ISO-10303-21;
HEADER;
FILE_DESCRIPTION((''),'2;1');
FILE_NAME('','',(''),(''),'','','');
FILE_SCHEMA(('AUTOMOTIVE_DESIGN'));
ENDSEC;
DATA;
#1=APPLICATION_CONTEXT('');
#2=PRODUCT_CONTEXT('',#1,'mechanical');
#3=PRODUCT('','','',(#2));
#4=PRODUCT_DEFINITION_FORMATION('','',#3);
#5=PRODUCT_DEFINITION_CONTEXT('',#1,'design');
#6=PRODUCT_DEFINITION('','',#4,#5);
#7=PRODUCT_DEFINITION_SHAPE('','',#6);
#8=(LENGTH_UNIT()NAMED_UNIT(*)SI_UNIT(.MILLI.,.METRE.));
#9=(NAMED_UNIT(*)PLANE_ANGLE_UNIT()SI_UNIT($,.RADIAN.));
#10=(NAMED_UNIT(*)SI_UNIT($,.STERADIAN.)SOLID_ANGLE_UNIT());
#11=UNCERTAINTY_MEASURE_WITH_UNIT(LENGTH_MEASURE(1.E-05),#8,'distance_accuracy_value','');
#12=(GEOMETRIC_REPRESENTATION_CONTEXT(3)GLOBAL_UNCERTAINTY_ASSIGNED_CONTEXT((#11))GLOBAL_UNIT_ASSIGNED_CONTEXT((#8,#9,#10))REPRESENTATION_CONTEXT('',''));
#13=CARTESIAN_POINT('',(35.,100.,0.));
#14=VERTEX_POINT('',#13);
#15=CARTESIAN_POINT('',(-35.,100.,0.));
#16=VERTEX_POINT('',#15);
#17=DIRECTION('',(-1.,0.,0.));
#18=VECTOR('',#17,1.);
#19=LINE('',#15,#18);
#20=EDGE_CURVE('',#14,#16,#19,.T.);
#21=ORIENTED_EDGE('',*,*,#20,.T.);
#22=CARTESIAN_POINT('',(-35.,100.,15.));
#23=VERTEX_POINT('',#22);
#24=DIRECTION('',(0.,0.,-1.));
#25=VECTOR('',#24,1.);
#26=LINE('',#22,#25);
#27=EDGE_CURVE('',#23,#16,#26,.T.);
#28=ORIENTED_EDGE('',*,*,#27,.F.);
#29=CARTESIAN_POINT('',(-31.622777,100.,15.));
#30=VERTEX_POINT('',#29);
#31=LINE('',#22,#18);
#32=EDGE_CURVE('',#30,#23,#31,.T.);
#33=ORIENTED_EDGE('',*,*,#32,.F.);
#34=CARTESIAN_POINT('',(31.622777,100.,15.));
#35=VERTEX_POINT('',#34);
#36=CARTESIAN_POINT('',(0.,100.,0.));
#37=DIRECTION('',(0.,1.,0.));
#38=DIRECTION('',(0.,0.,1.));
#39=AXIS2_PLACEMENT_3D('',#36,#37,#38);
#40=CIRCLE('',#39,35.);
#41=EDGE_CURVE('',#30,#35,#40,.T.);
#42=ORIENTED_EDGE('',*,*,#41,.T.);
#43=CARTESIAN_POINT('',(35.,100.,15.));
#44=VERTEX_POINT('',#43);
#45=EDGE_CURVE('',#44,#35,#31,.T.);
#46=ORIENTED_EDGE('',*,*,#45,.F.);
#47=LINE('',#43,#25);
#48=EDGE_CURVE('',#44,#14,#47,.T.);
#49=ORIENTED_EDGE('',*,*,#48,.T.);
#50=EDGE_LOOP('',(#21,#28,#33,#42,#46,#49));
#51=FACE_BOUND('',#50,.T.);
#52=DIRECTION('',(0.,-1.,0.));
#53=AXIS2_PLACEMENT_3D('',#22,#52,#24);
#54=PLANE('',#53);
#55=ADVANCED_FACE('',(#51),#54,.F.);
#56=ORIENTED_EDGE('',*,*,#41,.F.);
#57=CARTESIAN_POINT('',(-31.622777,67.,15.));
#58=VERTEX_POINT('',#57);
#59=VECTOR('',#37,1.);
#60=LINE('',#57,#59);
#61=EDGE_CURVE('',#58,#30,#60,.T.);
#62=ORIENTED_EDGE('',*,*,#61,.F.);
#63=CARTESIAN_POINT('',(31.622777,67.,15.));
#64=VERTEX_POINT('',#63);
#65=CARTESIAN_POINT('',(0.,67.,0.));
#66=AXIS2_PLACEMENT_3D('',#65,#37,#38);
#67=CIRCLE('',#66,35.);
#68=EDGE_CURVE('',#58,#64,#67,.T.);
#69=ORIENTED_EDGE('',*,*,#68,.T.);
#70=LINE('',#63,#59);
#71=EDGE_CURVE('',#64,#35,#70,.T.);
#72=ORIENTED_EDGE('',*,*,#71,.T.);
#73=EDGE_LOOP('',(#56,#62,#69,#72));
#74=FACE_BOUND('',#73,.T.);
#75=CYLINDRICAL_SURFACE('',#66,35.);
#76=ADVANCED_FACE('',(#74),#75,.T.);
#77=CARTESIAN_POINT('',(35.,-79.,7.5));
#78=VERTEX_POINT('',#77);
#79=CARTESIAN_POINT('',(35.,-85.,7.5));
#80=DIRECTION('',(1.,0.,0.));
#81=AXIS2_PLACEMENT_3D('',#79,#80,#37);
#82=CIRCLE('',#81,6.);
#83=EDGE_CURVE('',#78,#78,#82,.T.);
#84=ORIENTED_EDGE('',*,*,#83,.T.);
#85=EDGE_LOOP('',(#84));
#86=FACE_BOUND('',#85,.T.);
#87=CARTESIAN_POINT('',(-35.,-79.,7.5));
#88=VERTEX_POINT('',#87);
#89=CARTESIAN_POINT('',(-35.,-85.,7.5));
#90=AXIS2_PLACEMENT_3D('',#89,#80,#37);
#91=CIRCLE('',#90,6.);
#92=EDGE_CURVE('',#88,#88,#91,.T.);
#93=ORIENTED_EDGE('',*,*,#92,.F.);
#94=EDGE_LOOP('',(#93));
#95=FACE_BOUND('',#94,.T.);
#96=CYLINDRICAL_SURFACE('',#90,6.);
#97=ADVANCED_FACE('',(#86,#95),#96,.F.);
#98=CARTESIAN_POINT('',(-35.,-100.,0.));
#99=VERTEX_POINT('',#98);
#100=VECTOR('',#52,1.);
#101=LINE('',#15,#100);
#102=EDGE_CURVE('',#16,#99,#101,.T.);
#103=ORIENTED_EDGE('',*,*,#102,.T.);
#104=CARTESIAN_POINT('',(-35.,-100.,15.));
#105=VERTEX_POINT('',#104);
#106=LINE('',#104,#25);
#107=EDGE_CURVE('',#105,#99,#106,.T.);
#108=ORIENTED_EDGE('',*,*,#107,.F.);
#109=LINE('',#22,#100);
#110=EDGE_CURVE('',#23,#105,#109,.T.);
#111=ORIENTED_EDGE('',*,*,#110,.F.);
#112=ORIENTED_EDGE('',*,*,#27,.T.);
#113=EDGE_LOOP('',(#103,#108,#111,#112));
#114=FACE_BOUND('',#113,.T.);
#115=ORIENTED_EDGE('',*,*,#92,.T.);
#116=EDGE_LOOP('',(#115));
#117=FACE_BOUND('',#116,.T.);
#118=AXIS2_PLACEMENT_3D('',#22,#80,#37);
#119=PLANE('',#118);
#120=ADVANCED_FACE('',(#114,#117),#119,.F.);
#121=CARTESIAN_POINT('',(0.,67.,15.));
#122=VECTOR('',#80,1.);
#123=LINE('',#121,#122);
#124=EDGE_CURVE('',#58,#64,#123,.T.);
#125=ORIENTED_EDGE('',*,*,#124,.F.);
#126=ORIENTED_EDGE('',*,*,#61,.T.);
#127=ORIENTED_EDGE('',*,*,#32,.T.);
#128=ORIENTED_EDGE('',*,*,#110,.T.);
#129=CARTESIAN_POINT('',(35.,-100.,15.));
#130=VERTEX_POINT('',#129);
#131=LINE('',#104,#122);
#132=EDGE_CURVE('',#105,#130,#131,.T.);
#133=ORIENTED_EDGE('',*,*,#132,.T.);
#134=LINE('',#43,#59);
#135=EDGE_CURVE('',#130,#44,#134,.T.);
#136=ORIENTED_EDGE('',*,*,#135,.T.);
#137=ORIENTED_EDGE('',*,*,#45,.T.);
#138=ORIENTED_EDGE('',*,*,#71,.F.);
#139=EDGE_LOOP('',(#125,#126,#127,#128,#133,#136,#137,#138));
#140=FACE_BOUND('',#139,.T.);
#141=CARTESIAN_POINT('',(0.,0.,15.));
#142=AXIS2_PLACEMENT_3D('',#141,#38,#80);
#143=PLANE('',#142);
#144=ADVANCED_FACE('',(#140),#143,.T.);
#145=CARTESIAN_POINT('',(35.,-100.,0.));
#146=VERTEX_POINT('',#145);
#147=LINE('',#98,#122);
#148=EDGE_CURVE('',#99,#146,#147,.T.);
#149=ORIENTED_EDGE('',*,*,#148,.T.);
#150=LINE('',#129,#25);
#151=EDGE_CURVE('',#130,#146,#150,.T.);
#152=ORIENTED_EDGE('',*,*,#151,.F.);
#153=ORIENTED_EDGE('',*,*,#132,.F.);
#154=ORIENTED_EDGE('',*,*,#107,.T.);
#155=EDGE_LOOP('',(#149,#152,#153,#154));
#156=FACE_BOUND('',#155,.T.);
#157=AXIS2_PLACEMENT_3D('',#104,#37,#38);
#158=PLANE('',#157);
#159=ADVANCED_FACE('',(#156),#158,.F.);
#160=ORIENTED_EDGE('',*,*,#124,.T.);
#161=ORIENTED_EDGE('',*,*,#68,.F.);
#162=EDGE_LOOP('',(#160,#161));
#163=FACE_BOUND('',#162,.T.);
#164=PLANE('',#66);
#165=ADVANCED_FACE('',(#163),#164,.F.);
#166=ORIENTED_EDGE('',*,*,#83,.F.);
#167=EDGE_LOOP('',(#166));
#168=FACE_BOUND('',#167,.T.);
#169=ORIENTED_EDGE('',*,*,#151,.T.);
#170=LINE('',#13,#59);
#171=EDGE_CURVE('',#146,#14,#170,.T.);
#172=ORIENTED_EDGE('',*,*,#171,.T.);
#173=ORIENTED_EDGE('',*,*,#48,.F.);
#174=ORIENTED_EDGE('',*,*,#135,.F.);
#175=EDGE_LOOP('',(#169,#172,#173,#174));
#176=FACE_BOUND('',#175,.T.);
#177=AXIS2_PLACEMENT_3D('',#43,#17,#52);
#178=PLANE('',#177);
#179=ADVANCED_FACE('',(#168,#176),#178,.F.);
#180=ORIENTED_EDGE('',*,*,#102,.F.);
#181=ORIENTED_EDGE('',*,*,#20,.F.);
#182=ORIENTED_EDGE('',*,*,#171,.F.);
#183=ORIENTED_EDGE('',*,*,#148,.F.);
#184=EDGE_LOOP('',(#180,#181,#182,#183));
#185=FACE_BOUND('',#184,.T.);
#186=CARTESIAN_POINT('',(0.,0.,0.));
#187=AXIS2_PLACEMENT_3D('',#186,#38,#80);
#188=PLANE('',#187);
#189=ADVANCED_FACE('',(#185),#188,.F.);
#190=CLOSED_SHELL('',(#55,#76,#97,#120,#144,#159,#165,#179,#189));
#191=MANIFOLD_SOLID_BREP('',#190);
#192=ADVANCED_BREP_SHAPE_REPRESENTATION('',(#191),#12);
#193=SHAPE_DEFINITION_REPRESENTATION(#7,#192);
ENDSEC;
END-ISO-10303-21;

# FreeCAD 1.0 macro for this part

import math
import FreeCAD as App
import Part
import Sketcher

V = App.Vector
Q = App.Units.Quantity


def add_polygon(sketch, points):
    """Adds a closed chain of lines whose ends are joined by coincident constraints."""
    first, n = sketch.GeometryCount, len(points)
    for a, b in zip(points, points[1:] + points[:1]):
        sketch.addGeometry(Part.LineSegment(App.Vector(*a, 0), App.Vector(*b, 0)), False)
    for i in range(n):
        sketch.addConstraint(Sketcher.Constraint("Coincident", first + i, 2, first + (i + 1) % n, 1))

doc = App.newDocument("Part")
params = doc.addObject("Spreadsheet::Sheet", "Params")
for row, (alias, value) in enumerate([
    ("sketch1_width", "70 mm"),
    ("sketch1_height", "200 mm"),
    ("pad1_length", "15 mm"),
    ("sketch2_diameter", "12 mm"),
    ("sketch3_radius", "35 mm"),
    ("pad2_length", "33 mm"),
], start=1):
    params.set(f"A{row}", alias)
    params.set(f"B{row}", "=" + value)
    params.setAlias(f"B{row}", alias)

body = doc.addObject("PartDesign::Body", "Body")

sketch1 = body.newObject("Sketcher::SketchObject", "Sketch")
sketch1.AttachmentSupport = (doc.getObject("XY_Plane"), [""])
sketch1.MapMode = "FlatFace"
add_polygon(sketch1, [(-35, 100), (-35, -100), (35, -100), (35, 100)])
sketch1.addConstraint([
    Sketcher.Constraint("Vertical", 0),
    Sketcher.Constraint("Horizontal", 1),
    Sketcher.Constraint("Vertical", 2),
    Sketcher.Constraint("Horizontal", 3),
    Sketcher.Constraint("Symmetric", 0, 2, 2, 2, -1, 1),
    Sketcher.Constraint("DistanceX", 1, 1, 1, 2, Q("70 mm")),
    Sketcher.Constraint("DistanceY", 0, 2, 0, 1, Q("200 mm")),
])
sketch1.setExpression("Constraints[9]", "Params.sketch1_width")
sketch1.setExpression("Constraints[10]", "Params.sketch1_height")
pad1 = body.newObject("PartDesign::Pad", "Pad")
pad1.Profile = sketch1
pad1.setExpression("Length", "Params.pad1_length")

sketch2 = body.newObject("Sketcher::SketchObject", "Sketch001")
sketch2.AttachmentSupport = (doc.getObject("YZ_Plane"), [""])
sketch2.MapMode = "FlatFace"
sketch2.AttachmentOffset = App.Placement(V(0, 0, 35), App.Rotation())
sketch2.addGeometry(Part.Circle(V(-85, 7.5, 0), V(0, 0, 1), 6), False)
sketch2.addConstraint([
    Sketcher.Constraint("Diameter", 0, Q("12 mm")),
    Sketcher.Constraint("DistanceX", 0, 3, -1, 1, Q("85 mm")),
    Sketcher.Constraint("DistanceY", -1, 1, 0, 3, Q("7.5 mm")),
])
sketch2.setExpression("Constraints[0]", "Params.sketch2_diameter")
pocket1 = body.newObject("PartDesign::Pocket", "Pocket")
pocket1.Profile = sketch2
pocket1.Type = "ThroughAll"

sketch3 = body.newObject("Sketcher::SketchObject", "Sketch002")
sketch3.AttachmentSupport = (doc.getObject("XZ_Plane"), [""])
sketch3.MapMode = "FlatFace"
sketch3.AttachmentOffset = App.Placement(V(0, 0, -100), App.Rotation())
sketch3.addGeometry([
    Part.LineSegment(V(31.622777, 15, 0), V(-31.622777, 15, 0)),
    Part.ArcOfCircle(Part.Circle(V(0, 0, 0), V(0, 0, 1), 35), math.radians(25.376934), math.radians(154.623066)),
], False)
sketch3.addConstraint([
    Sketcher.Constraint("Coincident", 0, 1, 1, 1),
    Sketcher.Constraint("Coincident", 1, 2, 0, 2),
    Sketcher.Constraint("Horizontal", 0),
    Sketcher.Constraint("Coincident", 1, 3, -1, 1),
    Sketcher.Constraint("Radius", 1, Q("35 mm")),
    Sketcher.Constraint("DistanceY", -1, 1, 0, 1, Q("15 mm")),
])
sketch3.setExpression("Constraints[4]", "Params.sketch3_radius")
pad2 = body.newObject("PartDesign::Pad", "Pad001")
pad2.Profile = sketch3
pad2.setExpression("Length", "Params.pad2_length")

doc.recompute()
